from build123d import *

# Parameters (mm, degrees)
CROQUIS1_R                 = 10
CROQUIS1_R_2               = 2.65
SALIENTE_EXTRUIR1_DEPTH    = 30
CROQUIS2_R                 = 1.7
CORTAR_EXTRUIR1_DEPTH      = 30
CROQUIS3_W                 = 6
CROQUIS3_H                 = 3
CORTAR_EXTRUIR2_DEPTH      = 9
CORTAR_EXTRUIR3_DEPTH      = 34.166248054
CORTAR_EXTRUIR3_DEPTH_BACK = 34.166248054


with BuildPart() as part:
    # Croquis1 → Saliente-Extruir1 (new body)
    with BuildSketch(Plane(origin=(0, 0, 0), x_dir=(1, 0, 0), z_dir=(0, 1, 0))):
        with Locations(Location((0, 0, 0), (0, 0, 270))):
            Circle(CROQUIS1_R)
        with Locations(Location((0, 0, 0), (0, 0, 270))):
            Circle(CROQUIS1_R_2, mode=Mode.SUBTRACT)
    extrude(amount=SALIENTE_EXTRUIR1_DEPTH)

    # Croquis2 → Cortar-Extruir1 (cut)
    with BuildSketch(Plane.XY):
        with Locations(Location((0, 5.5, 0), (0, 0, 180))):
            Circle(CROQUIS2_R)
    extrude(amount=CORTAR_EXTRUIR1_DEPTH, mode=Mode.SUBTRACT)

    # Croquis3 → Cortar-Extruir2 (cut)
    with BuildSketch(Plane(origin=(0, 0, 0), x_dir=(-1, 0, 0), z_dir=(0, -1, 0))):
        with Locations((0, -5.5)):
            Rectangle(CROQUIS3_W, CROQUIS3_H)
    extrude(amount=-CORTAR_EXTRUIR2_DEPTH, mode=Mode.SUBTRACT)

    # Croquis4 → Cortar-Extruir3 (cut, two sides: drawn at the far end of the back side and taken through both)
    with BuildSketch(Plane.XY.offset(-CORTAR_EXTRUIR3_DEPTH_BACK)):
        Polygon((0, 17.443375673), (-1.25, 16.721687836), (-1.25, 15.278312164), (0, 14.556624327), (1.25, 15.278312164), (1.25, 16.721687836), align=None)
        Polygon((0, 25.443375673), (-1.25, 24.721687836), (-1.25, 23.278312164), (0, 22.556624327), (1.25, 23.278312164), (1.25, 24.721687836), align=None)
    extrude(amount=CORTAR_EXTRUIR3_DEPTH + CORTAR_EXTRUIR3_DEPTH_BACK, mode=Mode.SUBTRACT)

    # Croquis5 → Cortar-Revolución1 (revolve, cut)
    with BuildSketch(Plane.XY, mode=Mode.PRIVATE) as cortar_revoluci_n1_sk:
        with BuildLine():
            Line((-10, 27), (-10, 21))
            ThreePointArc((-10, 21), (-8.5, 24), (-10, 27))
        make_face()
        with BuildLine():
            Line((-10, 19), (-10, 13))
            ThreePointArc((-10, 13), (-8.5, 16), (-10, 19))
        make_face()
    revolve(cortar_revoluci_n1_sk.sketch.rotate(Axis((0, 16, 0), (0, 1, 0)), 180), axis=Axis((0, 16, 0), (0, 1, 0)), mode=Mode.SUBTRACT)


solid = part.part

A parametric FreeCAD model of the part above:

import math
import FreeCAD as App
import Part
import Sketcher

V = App.Vector
Q = App.Units.Quantity


def add_polygon(sketch, points):
    """Adds a closed chain of lines whose ends are joined by coincident constraints."""
    first, n = sketch.GeometryCount, len(points)
    for a, b in zip(points, points[1:] + points[:1]):
        sketch.addGeometry(Part.LineSegment(App.Vector(*a, 0), App.Vector(*b, 0)), False)
    for i in range(n):
        sketch.addConstraint(Sketcher.Constraint("Coincident", first + i, 2, first + (i + 1) % n, 1))

doc = App.newDocument("Part")
params = doc.addObject("Spreadsheet::Sheet", "Params")
for row, (alias, value) in enumerate([
    ("sketch1_diameter", "20 mm"),
    ("sketch1_diameter2", "5.3 mm"),
    ("pad1_length", "30 mm"),
    ("sketch2_diameter", "3.4 mm"),
    ("pocket1_length", "30 mm"),
    ("sketch3_width", "6 mm"),
    ("sketch3_height", "3 mm"),
    ("pocket2_length", "9 mm"),
    ("sketch5_height", "6 mm"),
    ("sketch5_radius", "3.75 mm"),
    ("groove_angle", "360 deg"),
], start=1):
    params.set(f"A{row}", alias)
    params.set(f"B{row}", "=" + value)
    params.setAlias(f"B{row}", alias)

body = doc.addObject("PartDesign::Body", "Body")

sketch1 = body.newObject("Sketcher::SketchObject", "Sketch")
sketch1.AttachmentSupport = (doc.getObject("XZ_Plane"), [""])
sketch1.MapMode = "FlatFace"
sketch1.addGeometry([
    Part.Circle(V(0, 0, 0), V(0, 0, 1), 10),
    Part.Circle(V(0, 0, 0), V(0, 0, 1), 2.65),
], False)
sketch1.addConstraint([
    Sketcher.Constraint("Coincident", 0, 3, -1, 1),
    Sketcher.Constraint("Coincident", 1, 3, -1, 1),
    Sketcher.Constraint("Diameter", 0, 20.0),
    Sketcher.Constraint("Diameter", 1, 5.3),
])
sketch1.setExpression("Constraints[2]", "Params.sketch1_diameter")
sketch1.setExpression("Constraints[3]", "Params.sketch1_diameter2")
pad1 = body.newObject("PartDesign::Pad", "Pad")
pad1.Profile = sketch1
pad1.setExpression("Length", "Params.pad1_length")
pad1.Reversed = True

sketch2 = body.newObject("Sketcher::SketchObject", "Sketch001")
sketch2.AttachmentSupport = (doc.getObject("XY_Plane"), [""])
sketch2.MapMode = "FlatFace"
sketch2.addGeometry(Part.Circle(V(0, 5.5, 0), V(0, 0, 1), 1.7), False)
sketch2.addConstraint([
    Sketcher.Constraint("PointOnObject", 0, 3, -2),
    Sketcher.Constraint("Diameter", 0, 3.4),
    Sketcher.Constraint("DistanceY", -1, 1, 0, 3, 5.5),
])
sketch2.setExpression("Constraints[1]", "Params.sketch2_diameter")
pocket1 = body.newObject("PartDesign::Pocket", "Pocket")
pocket1.Profile = sketch2
pocket1.setExpression("Length", "Params.pocket1_length")
pocket1.Reversed = True

sketch3 = body.newObject("Sketcher::SketchObject", "Sketch002")
sketch3.AttachmentSupport = (doc.getObject("XZ_Plane"), [""])
sketch3.MapMode = "FlatFace"
add_polygon(sketch3, [(3, 4), (3, 7), (-3, 7), (-3, 4)])
sketch3.addConstraint([
    Sketcher.Constraint("Vertical", 0),
    Sketcher.Constraint("Horizontal", 1),
    Sketcher.Constraint("Vertical", 2),
    Sketcher.Constraint("Horizontal", 3),
    Sketcher.Constraint("DistanceX", 1, 2, 1, 1, 6.0),
    Sketcher.Constraint("DistanceY", 0, 1, 0, 2, 3.0),
    Sketcher.Constraint("DistanceX", -1, 1, 0, 2, 3.0),
    Sketcher.Constraint("DistanceY", -1, 1, 0, 2, 7.0),
])
sketch3.setExpression("Constraints[8]", "Params.sketch3_width")
sketch3.setExpression("Constraints[9]", "Params.sketch3_height")
pocket2 = body.newObject("PartDesign::Pocket", "Pocket001")
pocket2.Profile = sketch3
pocket2.setExpression("Length", "Params.pocket2_length")

sketch4 = body.newObject("Sketcher::SketchObject", "Sketch003")
sketch4.AttachmentSupport = (doc.getObject("XY_Plane"), [""])
sketch4.MapMode = "FlatFace"
add_polygon(sketch4, [(0, 17.443376), (-1.25, 16.721688), (-1.25, 15.278312), (0, 14.556624), (1.25, 15.278312), (1.25, 16.721688)])
add_polygon(sketch4, [(0, 25.443376), (-1.25, 24.721688), (-1.25, 23.278312), (0, 22.556624), (1.25, 23.278312), (1.25, 24.721688)])
sketch4.addConstraint([
    Sketcher.Constraint("Vertical", 1),
    Sketcher.Constraint("Vertical", 4),
    Sketcher.Constraint("Vertical", 7),
    Sketcher.Constraint("Vertical", 10),
    Sketcher.Constraint("Symmetric", 1, 2, 3, 2, -2),
    Sketcher.Constraint("Symmetric", 7, 2, 9, 2, -2),
    Sketcher.Constraint("PointOnObject", 2, 2, -2),
    Sketcher.Constraint("PointOnObject", 5, 2, -2),
    Sketcher.Constraint("PointOnObject", 8, 2, -2),
    Sketcher.Constraint("PointOnObject", 11, 2, -2),
    Sketcher.Constraint("Parallel", 0, 3),
    Sketcher.Constraint("Parallel", 2, 5),
    Sketcher.Constraint("Parallel", 3, 6),
    Sketcher.Constraint("Parallel", 5, 8),
    Sketcher.Constraint("Parallel", 8, 11),
    Sketcher.Constraint("Vertical", 1, 2, 6, 2),
    Sketcher.Constraint("Equal", 4, 7),
    Sketcher.Constraint("Angle", 0, Q("-150 deg")),
    Sketcher.Constraint("DistanceY", 0, 2, 6, 2, 8.0),
    Sketcher.Constraint("DistanceX", 1, 2, 3, 2, 2.5),
    Sketcher.Constraint("DistanceY", 1, 2, 1, 1, 1.443376),
    Sketcher.Constraint("DistanceY", -1, 1, 0, 2, 16.721688),
])
pocket3 = body.newObject("PartDesign::Pocket", "Pocket002")
pocket3.Profile = sketch4
pocket3.Type = "ThroughAll"
pocket3.Midplane = True

sketch5 = body.newObject("Sketcher::SketchObject", "Sketch004")
sketch5.AttachmentSupport = (doc.getObject("XY_Plane"), [""])
sketch5.MapMode = "FlatFace"
sketch5.addGeometry([
    Part.LineSegment(V(-10, 27, 0), V(-10, 21, 0)),
    Part.ArcOfCircle(Part.Circle(V(-12.25, 24, 0), V(0, 0, 1), 3.75), math.radians(-53.130102), math.radians(53.130102)),
    Part.LineSegment(V(-10, 19, 0), V(-10, 13, 0)),
    Part.ArcOfCircle(Part.Circle(V(-12.25, 16, 0), V(0, 0, 1), 3.75), math.radians(-53.130102), math.radians(53.130102)),
], False)
sketch5.addConstraint([
    Sketcher.Constraint("Coincident", 0, 1, 1, 2),
    Sketcher.Constraint("Coincident", 1, 1, 0, 2),
    Sketcher.Constraint("Coincident", 2, 1, 3, 2),
    Sketcher.Constraint("Coincident", 3, 1, 2, 2),
    Sketcher.Constraint("Vertical", 0),
    Sketcher.Constraint("Vertical", 2),
    Sketcher.Constraint("Equal", 1, 3),
    Sketcher.Constraint("Vertical", 1, 3, 3, 3),
    Sketcher.Constraint("Vertical", 1, 1, 2, 1),
    Sketcher.Constraint("DistanceY", 0, 2, 0, 1, 6.0),
    Sketcher.Constraint("Radius", 1, 3.75),
    Sketcher.Constraint("DistanceY", -1, 1, 1, 3, 24.0),
    Sketcher.Constraint("DistanceY", -1, 1, 3, 3, 16.0),
    Sketcher.Constraint("DistanceX", 0, 1, -1, 1, 10.0),
])
sketch5.setExpression("Constraints[9]", "Params.sketch5_height")
sketch5.setExpression("Constraints[10]", "Params.sketch5_radius")
groove = body.newObject("PartDesign::Groove", "Groove")
groove.Profile = sketch5
groove.ReferenceAxis = (sketch5, ["V_Axis"])
groove.setExpression("Angle", "Params.groove_angle")

doc.recompute()
